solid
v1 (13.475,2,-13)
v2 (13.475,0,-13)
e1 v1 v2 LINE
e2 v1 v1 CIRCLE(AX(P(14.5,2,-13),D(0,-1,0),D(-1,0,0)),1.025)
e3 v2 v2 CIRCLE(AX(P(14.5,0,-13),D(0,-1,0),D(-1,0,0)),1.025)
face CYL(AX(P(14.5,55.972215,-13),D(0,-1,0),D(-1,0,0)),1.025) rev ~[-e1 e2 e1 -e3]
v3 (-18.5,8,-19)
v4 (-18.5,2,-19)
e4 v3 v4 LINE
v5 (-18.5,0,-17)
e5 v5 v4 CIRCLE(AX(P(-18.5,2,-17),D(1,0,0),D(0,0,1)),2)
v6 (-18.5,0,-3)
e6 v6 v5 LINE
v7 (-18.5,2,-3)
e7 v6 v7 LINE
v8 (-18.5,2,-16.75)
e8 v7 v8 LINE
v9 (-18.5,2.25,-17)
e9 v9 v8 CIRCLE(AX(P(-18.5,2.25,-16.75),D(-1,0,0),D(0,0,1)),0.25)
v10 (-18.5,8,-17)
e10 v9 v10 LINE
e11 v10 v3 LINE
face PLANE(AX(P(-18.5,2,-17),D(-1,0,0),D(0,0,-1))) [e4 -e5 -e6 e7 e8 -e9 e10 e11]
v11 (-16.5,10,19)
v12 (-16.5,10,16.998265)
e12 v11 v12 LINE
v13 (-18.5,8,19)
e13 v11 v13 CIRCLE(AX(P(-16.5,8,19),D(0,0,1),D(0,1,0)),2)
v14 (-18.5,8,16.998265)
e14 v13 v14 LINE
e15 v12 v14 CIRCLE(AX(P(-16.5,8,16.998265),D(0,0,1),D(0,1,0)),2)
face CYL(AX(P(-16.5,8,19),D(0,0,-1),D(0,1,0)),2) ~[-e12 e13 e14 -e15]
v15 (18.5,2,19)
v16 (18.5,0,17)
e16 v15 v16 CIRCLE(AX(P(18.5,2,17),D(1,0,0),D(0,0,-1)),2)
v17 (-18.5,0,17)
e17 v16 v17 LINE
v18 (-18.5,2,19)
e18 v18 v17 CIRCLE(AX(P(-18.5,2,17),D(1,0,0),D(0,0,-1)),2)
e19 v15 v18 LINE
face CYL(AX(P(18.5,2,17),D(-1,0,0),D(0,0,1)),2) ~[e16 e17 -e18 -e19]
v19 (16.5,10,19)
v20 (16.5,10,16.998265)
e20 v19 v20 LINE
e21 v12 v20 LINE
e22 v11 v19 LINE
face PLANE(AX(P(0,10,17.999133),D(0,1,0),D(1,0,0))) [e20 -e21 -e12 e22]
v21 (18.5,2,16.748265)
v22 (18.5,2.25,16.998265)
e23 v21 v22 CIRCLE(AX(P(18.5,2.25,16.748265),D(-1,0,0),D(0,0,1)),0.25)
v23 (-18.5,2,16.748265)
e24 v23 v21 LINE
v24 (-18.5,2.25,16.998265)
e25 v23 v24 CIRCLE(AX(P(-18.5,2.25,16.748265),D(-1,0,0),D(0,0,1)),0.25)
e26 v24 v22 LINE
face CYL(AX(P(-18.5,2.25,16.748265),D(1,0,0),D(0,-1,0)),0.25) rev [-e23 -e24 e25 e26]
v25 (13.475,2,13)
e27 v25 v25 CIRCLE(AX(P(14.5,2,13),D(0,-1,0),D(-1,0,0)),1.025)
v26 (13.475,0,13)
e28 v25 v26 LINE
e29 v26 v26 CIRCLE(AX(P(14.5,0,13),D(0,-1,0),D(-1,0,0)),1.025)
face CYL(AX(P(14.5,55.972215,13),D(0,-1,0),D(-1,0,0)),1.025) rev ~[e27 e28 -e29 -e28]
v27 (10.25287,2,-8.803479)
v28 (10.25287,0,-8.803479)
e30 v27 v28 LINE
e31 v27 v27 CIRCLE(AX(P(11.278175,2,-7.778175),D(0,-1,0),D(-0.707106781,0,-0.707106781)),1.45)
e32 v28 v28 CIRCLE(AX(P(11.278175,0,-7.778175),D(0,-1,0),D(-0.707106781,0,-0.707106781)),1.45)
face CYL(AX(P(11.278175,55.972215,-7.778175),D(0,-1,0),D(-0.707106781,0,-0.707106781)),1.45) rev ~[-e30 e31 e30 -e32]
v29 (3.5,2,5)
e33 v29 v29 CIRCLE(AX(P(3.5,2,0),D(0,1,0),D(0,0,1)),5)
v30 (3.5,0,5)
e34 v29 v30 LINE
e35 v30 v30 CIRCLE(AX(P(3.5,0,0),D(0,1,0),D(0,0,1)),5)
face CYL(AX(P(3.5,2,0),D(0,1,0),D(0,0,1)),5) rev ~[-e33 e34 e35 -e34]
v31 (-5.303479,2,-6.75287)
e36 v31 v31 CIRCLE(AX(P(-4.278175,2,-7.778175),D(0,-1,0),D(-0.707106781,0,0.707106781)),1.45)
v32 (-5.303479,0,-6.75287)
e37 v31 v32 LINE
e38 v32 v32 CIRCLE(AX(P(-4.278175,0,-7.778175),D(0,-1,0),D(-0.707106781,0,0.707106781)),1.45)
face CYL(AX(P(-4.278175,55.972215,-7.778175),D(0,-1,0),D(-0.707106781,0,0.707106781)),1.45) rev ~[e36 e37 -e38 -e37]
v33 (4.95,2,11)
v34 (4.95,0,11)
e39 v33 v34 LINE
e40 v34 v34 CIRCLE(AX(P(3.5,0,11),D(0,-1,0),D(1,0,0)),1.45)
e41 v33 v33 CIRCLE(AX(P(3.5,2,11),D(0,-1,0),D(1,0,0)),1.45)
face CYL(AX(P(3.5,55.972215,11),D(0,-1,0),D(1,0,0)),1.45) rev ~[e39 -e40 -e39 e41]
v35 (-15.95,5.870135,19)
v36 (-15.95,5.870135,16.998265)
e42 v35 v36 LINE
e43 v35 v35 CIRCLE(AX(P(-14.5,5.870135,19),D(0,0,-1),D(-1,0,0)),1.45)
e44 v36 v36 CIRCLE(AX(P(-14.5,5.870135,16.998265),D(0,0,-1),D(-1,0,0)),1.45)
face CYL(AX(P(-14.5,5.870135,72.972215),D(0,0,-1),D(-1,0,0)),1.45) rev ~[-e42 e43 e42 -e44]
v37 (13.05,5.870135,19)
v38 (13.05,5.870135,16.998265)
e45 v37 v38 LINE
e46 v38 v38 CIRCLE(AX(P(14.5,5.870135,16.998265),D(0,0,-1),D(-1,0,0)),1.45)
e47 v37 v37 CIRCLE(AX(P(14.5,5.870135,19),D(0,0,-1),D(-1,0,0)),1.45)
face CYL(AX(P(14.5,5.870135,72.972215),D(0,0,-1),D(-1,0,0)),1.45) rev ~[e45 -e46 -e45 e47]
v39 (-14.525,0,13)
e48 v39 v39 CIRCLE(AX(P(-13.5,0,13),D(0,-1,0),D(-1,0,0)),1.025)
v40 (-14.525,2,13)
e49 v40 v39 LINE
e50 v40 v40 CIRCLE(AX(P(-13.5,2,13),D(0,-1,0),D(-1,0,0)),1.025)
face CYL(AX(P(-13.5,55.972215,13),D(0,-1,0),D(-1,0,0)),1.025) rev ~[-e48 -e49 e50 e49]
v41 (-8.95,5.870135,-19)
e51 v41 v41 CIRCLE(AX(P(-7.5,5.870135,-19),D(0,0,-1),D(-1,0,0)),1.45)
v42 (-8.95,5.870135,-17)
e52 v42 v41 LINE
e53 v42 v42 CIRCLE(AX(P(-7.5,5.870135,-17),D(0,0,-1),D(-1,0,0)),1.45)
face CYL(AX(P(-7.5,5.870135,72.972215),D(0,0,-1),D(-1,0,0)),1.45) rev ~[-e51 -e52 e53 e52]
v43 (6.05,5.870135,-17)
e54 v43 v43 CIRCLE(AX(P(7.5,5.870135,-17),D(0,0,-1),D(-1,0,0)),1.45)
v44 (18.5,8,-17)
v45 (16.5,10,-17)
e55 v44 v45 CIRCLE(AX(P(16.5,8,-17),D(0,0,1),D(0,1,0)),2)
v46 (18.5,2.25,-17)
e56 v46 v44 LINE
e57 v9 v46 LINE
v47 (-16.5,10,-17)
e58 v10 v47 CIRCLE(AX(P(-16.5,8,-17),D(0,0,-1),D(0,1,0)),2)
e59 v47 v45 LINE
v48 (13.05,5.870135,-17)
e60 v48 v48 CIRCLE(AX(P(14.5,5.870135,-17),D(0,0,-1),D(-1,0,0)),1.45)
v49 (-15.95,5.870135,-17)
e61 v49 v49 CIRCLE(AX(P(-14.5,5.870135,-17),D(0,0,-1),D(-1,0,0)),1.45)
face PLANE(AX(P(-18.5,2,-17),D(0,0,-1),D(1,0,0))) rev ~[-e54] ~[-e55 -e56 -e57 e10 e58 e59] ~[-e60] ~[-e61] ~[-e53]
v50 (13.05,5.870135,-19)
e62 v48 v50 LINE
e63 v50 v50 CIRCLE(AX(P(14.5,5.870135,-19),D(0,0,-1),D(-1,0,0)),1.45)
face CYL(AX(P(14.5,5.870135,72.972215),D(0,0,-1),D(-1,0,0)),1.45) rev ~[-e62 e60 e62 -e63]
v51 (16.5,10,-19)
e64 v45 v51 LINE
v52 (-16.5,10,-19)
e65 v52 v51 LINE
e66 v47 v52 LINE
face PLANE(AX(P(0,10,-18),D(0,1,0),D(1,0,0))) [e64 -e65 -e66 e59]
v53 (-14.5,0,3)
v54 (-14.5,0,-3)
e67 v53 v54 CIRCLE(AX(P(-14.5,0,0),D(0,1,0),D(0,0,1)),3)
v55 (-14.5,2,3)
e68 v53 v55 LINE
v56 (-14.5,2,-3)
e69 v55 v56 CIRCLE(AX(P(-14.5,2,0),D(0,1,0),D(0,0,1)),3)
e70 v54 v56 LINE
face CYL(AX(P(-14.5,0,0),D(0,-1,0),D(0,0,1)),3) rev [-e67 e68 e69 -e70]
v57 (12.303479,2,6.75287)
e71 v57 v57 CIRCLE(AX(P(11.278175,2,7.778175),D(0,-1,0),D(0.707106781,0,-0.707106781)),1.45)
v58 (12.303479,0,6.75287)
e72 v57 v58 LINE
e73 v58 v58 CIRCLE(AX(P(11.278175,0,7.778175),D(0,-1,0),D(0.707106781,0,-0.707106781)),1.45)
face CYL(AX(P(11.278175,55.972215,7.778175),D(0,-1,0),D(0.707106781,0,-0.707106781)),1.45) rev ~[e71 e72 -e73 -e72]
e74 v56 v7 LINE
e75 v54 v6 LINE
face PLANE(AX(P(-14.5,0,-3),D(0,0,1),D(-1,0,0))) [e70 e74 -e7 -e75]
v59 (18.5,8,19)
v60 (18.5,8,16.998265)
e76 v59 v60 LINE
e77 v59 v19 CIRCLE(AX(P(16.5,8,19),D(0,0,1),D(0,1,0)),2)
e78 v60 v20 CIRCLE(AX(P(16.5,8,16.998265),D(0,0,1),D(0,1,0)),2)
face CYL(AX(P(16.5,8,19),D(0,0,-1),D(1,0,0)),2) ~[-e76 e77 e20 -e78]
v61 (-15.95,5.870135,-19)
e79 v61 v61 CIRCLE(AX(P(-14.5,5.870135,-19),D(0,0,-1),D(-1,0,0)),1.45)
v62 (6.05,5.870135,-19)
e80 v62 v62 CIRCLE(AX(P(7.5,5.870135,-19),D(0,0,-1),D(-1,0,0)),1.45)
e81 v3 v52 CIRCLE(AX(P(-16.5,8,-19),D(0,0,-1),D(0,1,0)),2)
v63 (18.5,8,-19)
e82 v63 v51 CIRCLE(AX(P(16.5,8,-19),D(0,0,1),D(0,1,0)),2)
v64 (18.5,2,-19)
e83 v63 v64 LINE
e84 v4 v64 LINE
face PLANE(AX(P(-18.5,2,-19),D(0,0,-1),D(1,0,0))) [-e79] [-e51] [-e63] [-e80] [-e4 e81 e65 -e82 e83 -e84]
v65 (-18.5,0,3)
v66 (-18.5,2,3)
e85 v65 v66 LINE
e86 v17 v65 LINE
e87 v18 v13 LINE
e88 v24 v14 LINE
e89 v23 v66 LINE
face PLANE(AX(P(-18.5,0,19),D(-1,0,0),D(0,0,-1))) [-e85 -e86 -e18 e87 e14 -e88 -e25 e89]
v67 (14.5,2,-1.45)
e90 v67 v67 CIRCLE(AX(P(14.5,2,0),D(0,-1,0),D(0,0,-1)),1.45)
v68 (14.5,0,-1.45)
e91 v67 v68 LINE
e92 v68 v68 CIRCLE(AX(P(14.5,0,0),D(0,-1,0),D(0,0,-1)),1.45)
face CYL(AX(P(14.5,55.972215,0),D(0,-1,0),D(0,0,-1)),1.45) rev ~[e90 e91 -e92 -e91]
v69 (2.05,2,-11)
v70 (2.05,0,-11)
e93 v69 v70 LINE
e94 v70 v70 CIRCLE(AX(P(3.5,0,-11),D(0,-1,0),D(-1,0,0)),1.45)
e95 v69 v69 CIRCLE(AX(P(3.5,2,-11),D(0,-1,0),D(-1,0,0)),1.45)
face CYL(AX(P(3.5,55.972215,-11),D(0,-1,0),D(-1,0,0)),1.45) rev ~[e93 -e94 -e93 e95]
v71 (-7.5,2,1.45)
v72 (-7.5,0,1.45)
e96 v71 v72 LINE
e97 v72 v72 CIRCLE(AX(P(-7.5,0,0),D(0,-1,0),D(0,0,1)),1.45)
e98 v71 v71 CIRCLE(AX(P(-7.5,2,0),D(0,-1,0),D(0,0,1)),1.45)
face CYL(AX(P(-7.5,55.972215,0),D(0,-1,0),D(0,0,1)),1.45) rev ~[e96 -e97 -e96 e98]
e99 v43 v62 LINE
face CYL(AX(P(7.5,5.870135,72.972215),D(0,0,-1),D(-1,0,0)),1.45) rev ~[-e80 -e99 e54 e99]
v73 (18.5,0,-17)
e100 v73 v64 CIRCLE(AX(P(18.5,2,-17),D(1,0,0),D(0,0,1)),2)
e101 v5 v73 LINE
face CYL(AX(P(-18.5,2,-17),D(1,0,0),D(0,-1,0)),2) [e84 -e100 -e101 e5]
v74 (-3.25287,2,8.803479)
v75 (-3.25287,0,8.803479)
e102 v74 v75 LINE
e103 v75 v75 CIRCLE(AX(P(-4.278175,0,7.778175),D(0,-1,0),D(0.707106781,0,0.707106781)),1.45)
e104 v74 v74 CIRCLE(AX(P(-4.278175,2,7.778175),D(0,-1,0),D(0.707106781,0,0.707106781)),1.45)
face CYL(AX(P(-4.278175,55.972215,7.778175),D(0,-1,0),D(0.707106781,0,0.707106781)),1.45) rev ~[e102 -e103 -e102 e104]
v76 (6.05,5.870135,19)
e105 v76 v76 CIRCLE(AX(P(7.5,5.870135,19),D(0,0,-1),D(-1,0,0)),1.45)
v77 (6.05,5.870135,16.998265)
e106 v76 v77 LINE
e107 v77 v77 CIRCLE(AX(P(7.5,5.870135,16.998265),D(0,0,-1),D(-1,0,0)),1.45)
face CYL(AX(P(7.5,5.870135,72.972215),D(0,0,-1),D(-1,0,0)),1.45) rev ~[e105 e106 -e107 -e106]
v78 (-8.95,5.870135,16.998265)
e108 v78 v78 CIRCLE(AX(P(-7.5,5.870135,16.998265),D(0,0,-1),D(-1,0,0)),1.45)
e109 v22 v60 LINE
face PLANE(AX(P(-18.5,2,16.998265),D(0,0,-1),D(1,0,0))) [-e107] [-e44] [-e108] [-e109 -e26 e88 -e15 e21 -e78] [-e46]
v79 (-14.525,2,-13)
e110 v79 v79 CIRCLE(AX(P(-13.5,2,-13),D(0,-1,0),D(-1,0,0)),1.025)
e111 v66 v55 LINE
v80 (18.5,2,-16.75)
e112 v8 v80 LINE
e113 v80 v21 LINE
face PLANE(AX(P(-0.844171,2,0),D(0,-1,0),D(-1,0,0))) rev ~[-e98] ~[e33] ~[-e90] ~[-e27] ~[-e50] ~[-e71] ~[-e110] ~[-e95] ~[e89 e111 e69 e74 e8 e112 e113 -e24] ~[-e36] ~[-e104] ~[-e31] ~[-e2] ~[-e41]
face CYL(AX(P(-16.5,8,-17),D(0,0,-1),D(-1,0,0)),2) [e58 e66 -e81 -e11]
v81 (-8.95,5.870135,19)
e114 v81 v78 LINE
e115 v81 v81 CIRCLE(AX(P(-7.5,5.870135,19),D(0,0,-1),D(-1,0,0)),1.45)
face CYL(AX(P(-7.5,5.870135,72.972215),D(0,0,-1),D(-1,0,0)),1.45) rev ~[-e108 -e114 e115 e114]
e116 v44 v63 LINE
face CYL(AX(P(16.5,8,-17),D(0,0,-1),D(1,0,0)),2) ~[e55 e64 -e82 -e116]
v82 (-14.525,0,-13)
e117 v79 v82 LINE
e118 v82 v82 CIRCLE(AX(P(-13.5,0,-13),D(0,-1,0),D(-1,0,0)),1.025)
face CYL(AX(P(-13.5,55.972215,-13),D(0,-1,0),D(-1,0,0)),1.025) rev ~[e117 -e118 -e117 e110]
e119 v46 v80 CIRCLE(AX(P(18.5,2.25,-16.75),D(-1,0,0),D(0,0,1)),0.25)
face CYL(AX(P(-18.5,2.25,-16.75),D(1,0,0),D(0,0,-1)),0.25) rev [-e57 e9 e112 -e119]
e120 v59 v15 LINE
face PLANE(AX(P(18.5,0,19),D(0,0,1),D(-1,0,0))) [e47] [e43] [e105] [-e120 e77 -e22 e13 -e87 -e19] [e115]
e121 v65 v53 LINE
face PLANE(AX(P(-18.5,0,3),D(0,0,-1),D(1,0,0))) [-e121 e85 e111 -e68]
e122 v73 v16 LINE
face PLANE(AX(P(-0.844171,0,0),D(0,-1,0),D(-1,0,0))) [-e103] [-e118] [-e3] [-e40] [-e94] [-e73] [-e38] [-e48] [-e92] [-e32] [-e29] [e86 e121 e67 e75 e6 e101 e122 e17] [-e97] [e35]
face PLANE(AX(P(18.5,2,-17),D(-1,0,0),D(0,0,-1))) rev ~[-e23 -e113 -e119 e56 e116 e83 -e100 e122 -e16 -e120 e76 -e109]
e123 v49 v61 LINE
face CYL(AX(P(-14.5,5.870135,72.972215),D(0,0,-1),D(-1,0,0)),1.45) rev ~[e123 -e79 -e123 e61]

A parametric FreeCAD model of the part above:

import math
import FreeCAD as App
import Part
import Sketcher
from FreeCAD import Vector


def edges_at(feature, points):
    """Names of the edges that pass closest to the given points."""
    edges = feature.Shape.Edges
    near = lambda p: min(range(len(edges)), key=lambda i: edges[i].distToShape(Part.Vertex(*p))[0])
    return sorted({f"Edge{near(p) + 1}" for p in points})


def add_polygon(sketch, points):
    """Adds a closed chain of lines whose ends are joined by coincident constraints."""
    first, n = sketch.GeometryCount, len(points)
    for a, b in zip(points, points[1:] + points[:1]):
        sketch.addGeometry(Part.LineSegment(App.Vector(*a, 0), App.Vector(*b, 0)), False)
    for i in range(n):
        sketch.addConstraint(Sketcher.Constraint("Coincident", first + i, 2, first + (i + 1) % n, 1))

doc = App.newDocument("Part")
body = doc.addObject("PartDesign::Body", "Body")

# Sketch on XZ plane
sketch1 = body.newObject("Sketcher::SketchObject", "Sketch")
sketch1.AttachmentSupport = (doc.getObject("XZ_Plane"), [""])
sketch1.MapMode = "FlatFace"
sketch1.addGeometry([
    Part.LineSegment(Vector(-18.5, -3, 0), Vector(-14.5, -3, 0)),  # 0
    Part.ArcOfCircle(Part.Circle(Vector(-14.5, 0, 0), Vector(0, 0, 1), 3), math.radians(-90), math.radians(90)),  # 1
    Part.LineSegment(Vector(-14.5, 3, 0), Vector(-18.5, 3, 0)),  # 2
    Part.LineSegment(Vector(-18.5, 3, 0), Vector(-18.5, 19, 0)),  # 3
    Part.LineSegment(Vector(-18.5, 19, 0), Vector(18.5, 19, 0)),  # 4
    Part.LineSegment(Vector(18.5, 19, 0), Vector(18.5, -19, 0)),  # 5
    Part.LineSegment(Vector(18.5, -19, 0), Vector(-18.5, -19, 0)),  # 6
    Part.LineSegment(Vector(-18.5, -19, 0), Vector(-18.5, -3, 0)),  # 7
], False)
sketch1.addConstraint([
    Sketcher.Constraint("Tangent", 0, 2, 1, 1),
    Sketcher.Constraint("Tangent", 1, 2, 2, 1),
    Sketcher.Constraint("Coincident", 2, 2, 3, 1),
    Sketcher.Constraint("Coincident", 3, 2, 4, 1),
    Sketcher.Constraint("Coincident", 4, 2, 5, 1),
    Sketcher.Constraint("Coincident", 5, 2, 6, 1),
    Sketcher.Constraint("Coincident", 6, 2, 7, 1),
    Sketcher.Constraint("Coincident", 7, 2, 0, 1),
    Sketcher.Constraint("Horizontal", 0),
    Sketcher.Constraint("Horizontal", 2),
    Sketcher.Constraint("Vertical", 3),
    Sketcher.Constraint("Horizontal", 4),
    Sketcher.Constraint("Vertical", 5),
    Sketcher.Constraint("Horizontal", 6),
    Sketcher.Constraint("Vertical", 7),
    Sketcher.Constraint("Symmetric", 3, 2, 5, 2, -1, 1),
    Sketcher.Constraint("Symmetric", 2, 2, 7, 2, -1),
    Sketcher.Constraint("Radius", 1, 3.0),
    Sketcher.Constraint("DistanceX", 0, 1, 0, 2, 4.0),
    Sketcher.Constraint("DistanceX", 4, 1, 4, 2, 37.0),
    Sketcher.Constraint("DistanceY", 3, 1, 3, 2, 16.0),
])
pad1 = body.newObject("PartDesign::Pad", "Pad")
pad1.Profile = sketch1
pad1.Length = 2
pad1.Reversed = True

# Sketch on XZ plane
sketch2 = body.newObject("Sketcher::SketchObject", "Sketch001")
sketch2.AttachmentSupport = (doc.getObject("XZ_Plane"), [""])
sketch2.MapMode = "FlatFace"
sketch2.AttachmentOffset = App.Placement(Vector(0, 0, -2), App.Rotation())
add_polygon(sketch2, [(-18.5, -19), (-18.5, -17), (18.5, -17), (18.5, -19)])  # lines 0-3
add_polygon(sketch2, [(-18.5, 16.998265), (-18.5, 19), (18.5, 19), (18.5, 16.998265)])  # lines 4-7
sketch2.addConstraint([
    Sketcher.Constraint("Vertical", 0),
    Sketcher.Constraint("Horizontal", 1),
    Sketcher.Constraint("Vertical", 2),
    Sketcher.Constraint("Horizontal", 3),
    Sketcher.Constraint("Vertical", 4),
    Sketcher.Constraint("Horizontal", 5),
    Sketcher.Constraint("Vertical", 6),
    Sketcher.Constraint("Horizontal", 7),
    Sketcher.Constraint("Symmetric", 2, 2, 4, 2, -1, 1),
    Sketcher.Constraint("Vertical", 3, 2, 4, 2),
    Sketcher.Constraint("Vertical", 2, 2, 5, 2),
    Sketcher.Constraint("DistanceX", 1, 1, 1, 2, 37.0),
    Sketcher.Constraint("DistanceY", 0, 1, 0, 2, 2.0),
    Sketcher.Constraint("DistanceY", 0, 2, -1, 1, 17.0),
    Sketcher.Constraint("DistanceY", 4, 1, 4, 2, 2.001735),
])
pad2 = body.newObject("PartDesign::Pad", "Pad001")
pad2.Profile = sketch2
pad2.Length = 8
pad2.Reversed = True
doc.recompute()

fillet = body.newObject("PartDesign::Fillet", "Fillet")
fillet.Base = (pad2, edges_at(pad2, [
    (0, 0, -19),
    (-18.5, 10, -18),
    (18.5, 10, -18),
    (-18.5, 10, 17.999),
    (18.5, 10, 17.999),
    (0, 0, 19),
]))
fillet.Radius = 2
doc.recompute()

fillet2 = body.newObject("PartDesign::Fillet", "Fillet001")
fillet2.Base = (fillet, edges_at(fillet, [(0, 2, -17), (0, 2, 16.998)]))
fillet2.Radius = 0.25

# Sketch on XZ plane
sketch3 = body.newObject("Sketcher::SketchObject", "Sketch002")
sketch3.AttachmentSupport = (doc.getObject("XZ_Plane"), [""])
sketch3.MapMode = "FlatFace"
sketch3.AttachmentOffset = App.Placement(Vector(0, 0, -2), App.Rotation())
sketch3.addGeometry([
    Part.Circle(Vector(-13.5, -13, 0), Vector(0, 0, 1), 1.025),
    Part.Circle(Vector(14.5, -13, 0), Vector(0, 0, 1), 1.025),
    Part.Circle(Vector(14.5, 13, 0), Vector(0, 0, 1), 1.025),
    Part.Circle(Vector(-13.5, 13, 0), Vector(0, 0, 1), 1.025),
], False)
sketch3.addConstraint([
    Sketcher.Constraint("Equal", 0, 1),
    Sketcher.Constraint("Equal", 1, 2),
    Sketcher.Constraint("Equal", 2, 3),
    Sketcher.Constraint("Symmetric", 1, 3, 2, 3, -1),
    Sketcher.Constraint("Symmetric", 0, 3, 3, 3, -1),
    Sketcher.Constraint("Horizontal", 0, 3, 1, 3),
    Sketcher.Constraint("Diameter", 0, 2.05),
    Sketcher.Constraint("DistanceY", 0, 3, -1, 1, 13.0),
    Sketcher.Constraint("DistanceX", 0, 3, 1, 3, 28.0),
    Sketcher.Constraint("DistanceX", 0, 3, -1, 1, 13.5),
])
doc.recompute()
hole = body.newObject("PartDesign::Hole", "Hole")
hole.Profile = sketch3
hole.ThreadType = "None"
hole.Diameter = 2.05
hole.DepthType = "ThroughAll"
hole.Reversed = True

# Sketch on XZ plane
sketch4 = body.newObject("Sketcher::SketchObject", "Sketch003")
sketch4.AttachmentSupport = (doc.getObject("XZ_Plane"), [""])
sketch4.MapMode = "FlatFace"
sketch4.AttachmentOffset = App.Placement(Vector(0, 0, -2), App.Rotation())
sketch4.addGeometry(Part.Circle(Vector(3.5, 0, 0), Vector(0, 0, 1), 5), False)
sketch4.addConstraint([
    Sketcher.Constraint("PointOnObject", 0, 3, -1),
    Sketcher.Constraint("Diameter", 0, 10.0),
    Sketcher.Constraint("DistanceX", -1, 1, 0, 3, 3.5),
])
pocket1 = body.newObject("PartDesign::Pocket", "Pocket")
pocket1.Profile = sketch4
pocket1.Type = "ThroughAll"
pocket1.Reversed = True

# Sketch on XZ plane
sketch5 = body.newObject("Sketcher::SketchObject", "Sketch004")
sketch5.AttachmentSupport = (doc.getObject("XZ_Plane"), [""])
sketch5.MapMode = "FlatFace"
sketch5.AttachmentOffset = App.Placement(Vector(0, 0, -2), App.Rotation())
sketch5.addGeometry(Part.Circle(Vector(3.5, -11, 0), Vector(0, 0, 1), 1.45), False)
sketch5.addConstraint([
    Sketcher.Constraint("Diameter", 0, 2.9),
    Sketcher.Constraint("DistanceY", 0, 3, -1, 1, 11.0),
    Sketcher.Constraint("DistanceX", -1, 1, 0, 3, 3.5),
])
doc.recompute()
hole2 = body.newObject("PartDesign::Hole", "Hole001")
hole2.Profile = sketch5
hole2.ThreadType = "None"
hole2.Diameter = 2.9
hole2.DepthType = "ThroughAll"
hole2.Reversed = True
doc.recompute()

datumline = body.newObject("PartDesign::Line", "DatumLine")
datumline.Placement = App.Placement(Vector(3.5, 0, 0), App.Rotation(Vector(0, 0, 1), Vector(0, 1, 0)))
polarpattern = body.newObject("PartDesign::PolarPattern", "PolarPattern")
polarpattern.Originals = [hole2]
polarpattern.Axis = (datumline, [""])
polarpattern.Angle = 360
polarpattern.Occurrences = 8
body.Tip = polarpattern

# Sketch on XY plane
sketch6 = body.newObject("Sketcher::SketchObject", "Sketch005")
sketch6.AttachmentSupport = (doc.getObject("XY_Plane"), [""])
sketch6.MapMode = "FlatFace"
sketch6.AttachmentOffset = App.Placement(Vector(0, 0, 19), App.Rotation())
sketch6.addGeometry([
    Part.Circle(Vector(-14.5, 5.870135, 0), Vector(0, 0, 1), 1.45),
    Part.Circle(Vector(-7.5, 5.870135, 0), Vector(0, 0, 1), 1.45),
    Part.Circle(Vector(7.5, 5.870135, 0), Vector(0, 0, 1), 1.45),
    Part.Circle(Vector(14.5, 5.870135, 0), Vector(0, 0, 1), 1.45),
], False)
sketch6.addConstraint([
    Sketcher.Constraint("Equal", 0, 1),
    Sketcher.Constraint("Equal", 1, 2),
    Sketcher.Constraint("Equal", 2, 3),
    Sketcher.Constraint("Symmetric", 1, 3, 2, 3, -2),
    Sketcher.Constraint("Symmetric", 0, 3, 3, 3, -2),
    Sketcher.Constraint("Horizontal", 0, 3, 1, 3),
    Sketcher.Constraint("Diameter", 0, 2.9),
    Sketcher.Constraint("DistanceX", 0, 3, 1, 3, 7.0),
    Sketcher.Constraint("DistanceX", 1, 3, 2, 3, 15.0),
    Sketcher.Constraint("DistanceY", -1, 1, 0, 3, 5.870135),
])
doc.recompute()
hole3 = body.newObject("PartDesign::Hole", "Hole002")
hole3.Profile = sketch6
hole3.ThreadType = "None"
hole3.Diameter = 2.9
hole3.DepthType = "ThroughAll"

doc.recompute()
